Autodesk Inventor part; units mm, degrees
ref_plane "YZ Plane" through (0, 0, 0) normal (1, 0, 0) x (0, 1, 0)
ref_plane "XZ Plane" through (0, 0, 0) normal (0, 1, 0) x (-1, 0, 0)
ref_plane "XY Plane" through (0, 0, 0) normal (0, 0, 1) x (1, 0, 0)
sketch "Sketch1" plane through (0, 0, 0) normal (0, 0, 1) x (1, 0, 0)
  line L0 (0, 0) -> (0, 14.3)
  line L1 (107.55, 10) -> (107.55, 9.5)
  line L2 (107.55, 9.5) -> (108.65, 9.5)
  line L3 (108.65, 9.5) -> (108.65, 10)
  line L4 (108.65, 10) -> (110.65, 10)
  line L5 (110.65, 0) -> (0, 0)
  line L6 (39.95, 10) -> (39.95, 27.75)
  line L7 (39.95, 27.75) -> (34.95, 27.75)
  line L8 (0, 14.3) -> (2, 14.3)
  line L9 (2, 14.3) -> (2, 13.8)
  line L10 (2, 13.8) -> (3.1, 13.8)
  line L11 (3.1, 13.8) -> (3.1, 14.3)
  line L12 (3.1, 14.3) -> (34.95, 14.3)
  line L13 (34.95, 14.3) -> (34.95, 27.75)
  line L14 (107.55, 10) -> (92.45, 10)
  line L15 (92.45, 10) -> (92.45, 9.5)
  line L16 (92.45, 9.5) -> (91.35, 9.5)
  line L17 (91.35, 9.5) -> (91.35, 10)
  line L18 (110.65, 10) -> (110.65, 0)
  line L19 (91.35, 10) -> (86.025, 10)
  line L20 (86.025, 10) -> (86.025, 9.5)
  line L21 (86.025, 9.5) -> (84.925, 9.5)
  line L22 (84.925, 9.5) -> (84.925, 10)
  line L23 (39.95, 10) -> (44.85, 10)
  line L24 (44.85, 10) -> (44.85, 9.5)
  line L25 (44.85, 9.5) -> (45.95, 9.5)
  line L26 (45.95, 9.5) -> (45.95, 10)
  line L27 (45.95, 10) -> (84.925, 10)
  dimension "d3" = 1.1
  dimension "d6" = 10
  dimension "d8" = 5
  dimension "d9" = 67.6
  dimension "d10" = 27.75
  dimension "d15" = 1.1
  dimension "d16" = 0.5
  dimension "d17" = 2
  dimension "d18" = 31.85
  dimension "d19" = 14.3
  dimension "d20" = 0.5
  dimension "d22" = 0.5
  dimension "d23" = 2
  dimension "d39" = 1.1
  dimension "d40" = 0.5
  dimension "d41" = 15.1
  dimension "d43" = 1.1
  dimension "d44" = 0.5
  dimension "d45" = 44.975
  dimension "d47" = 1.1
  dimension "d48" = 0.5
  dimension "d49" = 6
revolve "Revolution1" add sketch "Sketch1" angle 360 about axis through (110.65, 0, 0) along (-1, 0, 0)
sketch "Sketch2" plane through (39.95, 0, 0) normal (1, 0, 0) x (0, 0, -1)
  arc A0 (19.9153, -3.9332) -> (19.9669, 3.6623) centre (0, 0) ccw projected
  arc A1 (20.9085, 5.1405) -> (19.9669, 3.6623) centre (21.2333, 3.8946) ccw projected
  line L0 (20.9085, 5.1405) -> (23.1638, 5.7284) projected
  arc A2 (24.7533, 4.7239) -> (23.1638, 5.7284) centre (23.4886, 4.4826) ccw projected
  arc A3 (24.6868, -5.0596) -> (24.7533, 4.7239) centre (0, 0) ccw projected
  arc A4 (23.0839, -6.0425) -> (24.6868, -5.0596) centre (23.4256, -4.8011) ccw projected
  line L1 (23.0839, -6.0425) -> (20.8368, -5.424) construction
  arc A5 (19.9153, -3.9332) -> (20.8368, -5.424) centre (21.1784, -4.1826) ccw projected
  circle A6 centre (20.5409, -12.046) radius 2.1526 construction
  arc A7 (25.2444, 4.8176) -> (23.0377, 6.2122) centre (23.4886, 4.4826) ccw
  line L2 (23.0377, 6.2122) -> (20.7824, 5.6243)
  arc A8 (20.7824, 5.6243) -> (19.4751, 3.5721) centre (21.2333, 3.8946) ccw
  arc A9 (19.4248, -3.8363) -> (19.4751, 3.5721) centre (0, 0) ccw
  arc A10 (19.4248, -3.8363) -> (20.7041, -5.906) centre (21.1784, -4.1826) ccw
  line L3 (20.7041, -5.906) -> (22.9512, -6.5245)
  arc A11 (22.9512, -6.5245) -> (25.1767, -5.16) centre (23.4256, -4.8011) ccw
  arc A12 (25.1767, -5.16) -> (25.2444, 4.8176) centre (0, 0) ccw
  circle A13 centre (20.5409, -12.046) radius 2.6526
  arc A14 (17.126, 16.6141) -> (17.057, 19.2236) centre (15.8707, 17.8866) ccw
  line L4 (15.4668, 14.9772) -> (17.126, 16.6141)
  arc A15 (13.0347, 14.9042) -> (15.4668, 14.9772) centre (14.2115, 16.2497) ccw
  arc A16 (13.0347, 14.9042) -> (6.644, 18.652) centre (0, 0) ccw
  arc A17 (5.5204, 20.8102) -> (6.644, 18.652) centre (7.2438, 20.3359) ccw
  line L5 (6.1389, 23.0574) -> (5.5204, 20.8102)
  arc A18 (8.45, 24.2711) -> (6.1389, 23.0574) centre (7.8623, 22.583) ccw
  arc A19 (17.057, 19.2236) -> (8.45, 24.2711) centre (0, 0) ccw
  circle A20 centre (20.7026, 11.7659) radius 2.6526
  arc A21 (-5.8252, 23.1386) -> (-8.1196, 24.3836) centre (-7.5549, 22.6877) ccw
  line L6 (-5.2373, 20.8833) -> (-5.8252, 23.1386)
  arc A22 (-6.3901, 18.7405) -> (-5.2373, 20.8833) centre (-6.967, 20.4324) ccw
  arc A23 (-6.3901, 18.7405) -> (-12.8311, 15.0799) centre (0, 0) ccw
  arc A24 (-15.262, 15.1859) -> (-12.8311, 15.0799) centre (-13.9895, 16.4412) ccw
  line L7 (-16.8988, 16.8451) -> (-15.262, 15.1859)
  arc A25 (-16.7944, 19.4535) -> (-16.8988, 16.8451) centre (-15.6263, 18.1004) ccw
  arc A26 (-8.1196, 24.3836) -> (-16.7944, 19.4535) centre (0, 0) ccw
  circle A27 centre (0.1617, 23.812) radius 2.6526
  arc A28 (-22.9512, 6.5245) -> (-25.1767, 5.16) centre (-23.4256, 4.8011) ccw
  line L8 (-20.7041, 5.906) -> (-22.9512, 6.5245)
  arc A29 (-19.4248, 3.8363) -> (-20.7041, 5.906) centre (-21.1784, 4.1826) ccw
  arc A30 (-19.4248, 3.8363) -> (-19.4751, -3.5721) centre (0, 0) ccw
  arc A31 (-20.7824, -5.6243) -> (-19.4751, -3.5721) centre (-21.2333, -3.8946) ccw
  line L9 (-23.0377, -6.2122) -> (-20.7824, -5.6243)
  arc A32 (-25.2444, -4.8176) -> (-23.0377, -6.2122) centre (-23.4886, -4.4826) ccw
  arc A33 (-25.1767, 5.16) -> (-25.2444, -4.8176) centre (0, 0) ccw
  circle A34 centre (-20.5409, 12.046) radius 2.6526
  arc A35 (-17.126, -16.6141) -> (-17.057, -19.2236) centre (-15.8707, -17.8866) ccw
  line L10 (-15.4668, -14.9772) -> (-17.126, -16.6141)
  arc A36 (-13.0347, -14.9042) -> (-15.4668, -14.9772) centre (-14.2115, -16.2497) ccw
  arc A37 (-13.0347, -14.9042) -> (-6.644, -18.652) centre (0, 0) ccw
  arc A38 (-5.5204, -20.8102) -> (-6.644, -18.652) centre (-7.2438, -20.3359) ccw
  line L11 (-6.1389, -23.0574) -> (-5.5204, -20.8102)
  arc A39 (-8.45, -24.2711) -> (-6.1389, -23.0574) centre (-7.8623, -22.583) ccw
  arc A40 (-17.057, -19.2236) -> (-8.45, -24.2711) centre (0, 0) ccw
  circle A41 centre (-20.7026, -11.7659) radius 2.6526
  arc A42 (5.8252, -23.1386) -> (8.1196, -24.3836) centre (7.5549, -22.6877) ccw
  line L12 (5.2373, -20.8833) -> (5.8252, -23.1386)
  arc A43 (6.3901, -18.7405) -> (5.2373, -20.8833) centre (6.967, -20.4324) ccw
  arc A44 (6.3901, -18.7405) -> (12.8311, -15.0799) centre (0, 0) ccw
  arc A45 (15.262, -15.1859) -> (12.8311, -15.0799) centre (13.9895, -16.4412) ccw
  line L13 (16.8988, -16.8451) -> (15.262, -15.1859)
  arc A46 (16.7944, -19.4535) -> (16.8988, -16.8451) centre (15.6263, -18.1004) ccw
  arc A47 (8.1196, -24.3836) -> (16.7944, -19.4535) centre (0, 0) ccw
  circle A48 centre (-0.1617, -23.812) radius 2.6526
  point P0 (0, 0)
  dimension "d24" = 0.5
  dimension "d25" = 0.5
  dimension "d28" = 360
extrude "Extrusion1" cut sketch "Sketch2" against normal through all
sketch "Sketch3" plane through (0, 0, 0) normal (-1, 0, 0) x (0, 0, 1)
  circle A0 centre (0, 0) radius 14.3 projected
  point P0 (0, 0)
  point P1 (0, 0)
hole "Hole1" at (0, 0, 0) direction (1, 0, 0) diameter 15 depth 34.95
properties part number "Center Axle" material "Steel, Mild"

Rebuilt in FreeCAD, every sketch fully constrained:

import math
import FreeCAD as App
import Part
import Sketcher
Q = App.Units.Quantity

doc = App.newDocument("Part")
body = doc.addObject("PartDesign::Body", "Body")

# Sketch on XY plane
sketch1 = body.newObject("Sketcher::SketchObject", "Sketch")
sketch1.AttachmentSupport = (doc.getObject("XY_Plane"), [""])
sketch1.MapMode = "FlatFace"
sketch1.addGeometry([
    Part.LineSegment(App.Vector(0, 14.3, 0), App.Vector(0, 0, 0)),  # 0
    Part.LineSegment(App.Vector(0, 0, 0), App.Vector(110.7, 0, 0)),  # 1
    Part.LineSegment(App.Vector(110.7, 0, 0), App.Vector(110.7, 10, 0)),  # 2
    Part.LineSegment(App.Vector(110.7, 10, 0), App.Vector(108.7, 10, 0)),  # 3
    Part.LineSegment(App.Vector(108.7, 10, 0), App.Vector(108.7, 9.5, 0)),  # 4
    Part.LineSegment(App.Vector(108.7, 9.5, 0), App.Vector(107.5, 9.5, 0)),  # 5
    Part.LineSegment(App.Vector(107.5, 9.5, 0), App.Vector(107.5, 10, 0)),  # 6
    Part.LineSegment(App.Vector(107.5, 10, 0), App.Vector(92.5, 10, 0)),  # 7
    Part.LineSegment(App.Vector(92.5, 10, 0), App.Vector(92.5, 9.5, 0)),  # 8
    Part.LineSegment(App.Vector(92.5, 9.5, 0), App.Vector(91.3, 9.5, 0)),  # 9
    Part.LineSegment(App.Vector(91.3, 9.5, 0), App.Vector(91.3, 10, 0)),  # 10
    Part.LineSegment(App.Vector(91.3, 10, 0), App.Vector(86, 10, 0)),  # 11
    Part.LineSegment(App.Vector(86, 10, 0), App.Vector(86, 9.5, 0)),  # 12
    Part.LineSegment(App.Vector(86, 9.5, 0), App.Vector(84.9, 9.5, 0)),  # 13
    Part.LineSegment(App.Vector(84.9, 9.5, 0), App.Vector(84.9, 10, 0)),  # 14
    Part.LineSegment(App.Vector(84.9, 10, 0), App.Vector(46, 10, 0)),  # 15
    Part.LineSegment(App.Vector(46, 10, 0), App.Vector(46, 9.5, 0)),  # 16
    Part.LineSegment(App.Vector(46, 9.5, 0), App.Vector(44.9, 9.5, 0)),  # 17
    Part.LineSegment(App.Vector(44.9, 9.5, 0), App.Vector(44.9, 10, 0)),  # 18
    Part.LineSegment(App.Vector(44.9, 10, 0), App.Vector(40, 10, 0)),  # 19
    Part.LineSegment(App.Vector(40, 10, 0), App.Vector(40, 27.8, 0)),  # 20
    Part.LineSegment(App.Vector(40, 27.8, 0), App.Vector(35, 27.8, 0)),  # 21
    Part.LineSegment(App.Vector(35, 27.8, 0), App.Vector(35, 14.3, 0)),  # 22
    Part.LineSegment(App.Vector(35, 14.3, 0), App.Vector(3.1, 14.3, 0)),  # 23
    Part.LineSegment(App.Vector(3.1, 14.3, 0), App.Vector(3.1, 13.8, 0)),  # 24
    Part.LineSegment(App.Vector(3.1, 13.8, 0), App.Vector(2, 13.8, 0)),  # 25
    Part.LineSegment(App.Vector(2, 13.8, 0), App.Vector(2, 14.3, 0)),  # 26
    Part.LineSegment(App.Vector(2, 14.3, 0), App.Vector(0, 14.3, 0)),  # 27
], False)
sketch1.addConstraint([
    Sketcher.Constraint("Coincident", 0, 2, 1, 1),
    Sketcher.Constraint("Coincident", 1, 2, 2, 1),
    Sketcher.Constraint("Coincident", 2, 2, 3, 1),
    Sketcher.Constraint("Coincident", 3, 2, 4, 1),
    Sketcher.Constraint("Coincident", 4, 2, 5, 1),
    Sketcher.Constraint("Coincident", 5, 2, 6, 1),
    Sketcher.Constraint("Coincident", 6, 2, 7, 1),
    Sketcher.Constraint("Coincident", 7, 2, 8, 1),
    Sketcher.Constraint("Coincident", 8, 2, 9, 1),
    Sketcher.Constraint("Coincident", 9, 2, 10, 1),
    Sketcher.Constraint("Coincident", 10, 2, 11, 1),
    Sketcher.Constraint("Coincident", 11, 2, 12, 1),
    Sketcher.Constraint("Coincident", 12, 2, 13, 1),
    Sketcher.Constraint("Coincident", 13, 2, 14, 1),
    Sketcher.Constraint("Coincident", 14, 2, 15, 1),
    Sketcher.Constraint("Coincident", 15, 2, 16, 1),
    Sketcher.Constraint("Coincident", 16, 2, 17, 1),
    Sketcher.Constraint("Coincident", 17, 2, 18, 1),
    Sketcher.Constraint("Coincident", 18, 2, 19, 1),
    Sketcher.Constraint("Coincident", 19, 2, 20, 1),
    Sketcher.Constraint("Coincident", 20, 2, 21, 1),
    Sketcher.Constraint("Coincident", 21, 2, 22, 1),
    Sketcher.Constraint("Coincident", 22, 2, 23, 1),
    Sketcher.Constraint("Coincident", 23, 2, 24, 1),
    Sketcher.Constraint("Coincident", 24, 2, 25, 1),
    Sketcher.Constraint("Coincident", 25, 2, 26, 1),
    Sketcher.Constraint("Coincident", 26, 2, 27, 1),
    Sketcher.Constraint("Coincident", 27, 2, 0, 1),
    Sketcher.Constraint("Vertical", 0),
    Sketcher.Constraint("Horizontal", 1),
    Sketcher.Constraint("Vertical", 2),
    Sketcher.Constraint("Horizontal", 3),
    Sketcher.Constraint("Vertical", 4),
    Sketcher.Constraint("Horizontal", 5),
    Sketcher.Constraint("Vertical", 6),
    Sketcher.Constraint("Horizontal", 7),
    Sketcher.Constraint("Vertical", 8),
    Sketcher.Constraint("Horizontal", 9),
    Sketcher.Constraint("Vertical", 10),
    Sketcher.Constraint("Horizontal", 11),
    Sketcher.Constraint("Vertical", 12),
    Sketcher.Constraint("Horizontal", 13),
    Sketcher.Constraint("Vertical", 14),
    Sketcher.Constraint("Horizontal", 15),
    Sketcher.Constraint("Vertical", 16),
    Sketcher.Constraint("Horizontal", 17),
    Sketcher.Constraint("Vertical", 18),
    Sketcher.Constraint("Horizontal", 19),
    Sketcher.Constraint("Vertical", 20),
    Sketcher.Constraint("Horizontal", 21),
    Sketcher.Constraint("Vertical", 22),
    Sketcher.Constraint("Horizontal", 23),
    Sketcher.Constraint("Vertical", 24),
    Sketcher.Constraint("Horizontal", 25),
    Sketcher.Constraint("Vertical", 26),
    Sketcher.Constraint("Horizontal", 27),
    Sketcher.Constraint("Coincident", 0, 2, -1, 1),
    Sketcher.Constraint("Horizontal", 3, 2, 6, 2),
    Sketcher.Constraint("Horizontal", 5, 2, 8, 2),
    Sketcher.Constraint("Horizontal", 7, 2, 10, 2),
    Sketcher.Constraint("Horizontal", 9, 2, 12, 2),
    Sketcher.Constraint("Horizontal", 11, 2, 14, 2),
    Sketcher.Constraint("Horizontal", 13, 2, 16, 2),
    Sketcher.Constraint("Horizontal", 15, 2, 18, 2),
    Sketcher.Constraint("Horizontal", 23, 2, 26, 2),
    Sketcher.Constraint("Equal", 5, 9),
    Sketcher.Constraint("Equal", 9, 13),
    Sketcher.Constraint("Equal", 13, 17),
    Sketcher.Constraint("Equal", 17, 25),
    Sketcher.Constraint("Equal", 3, 27),
    Sketcher.Constraint("Equal", 18, 24),
    Sketcher.Constraint("DistanceX", 3, 2, 3, 1, 2.0),
    Sketcher.Constraint("DistanceX", 21, 2, 21, 1, 5.0),
    Sketcher.Constraint("DistanceY", 2, 1, 2, 2, 10.0),
    Sketcher.Constraint("DistanceX", 5, 2, 5, 1, 1.1),
    Sketcher.Constraint("DistanceX", 7, 2, 7, 1, 15.1),
    Sketcher.Constraint("DistanceY", 0, 2, 0, 1, 14.3),
    Sketcher.Constraint("DistanceY", 4, 2, 4, 1, 0.5),
    Sketcher.Constraint("DistanceX", 19, 2, 15, 2, 6.0),
    Sketcher.Constraint("DistanceX", 23, 2, 23, 1, 31.85),
    Sketcher.Constraint("DistanceY", -1, 1, 20, 2, 27.75),
    Sketcher.Constraint("DistanceX", 1, 1, 1, 2, 110.65),
    Sketcher.Constraint("DistanceX", 11, 2, 11, 1, 5.325),
])
revolution = body.newObject("PartDesign::Revolution", "Revolution")
revolution.Profile = sketch1
revolution.ReferenceAxis = (sketch1, ["H_Axis"])
revolution.Angle = 360

# Sketch on YZ plane
sketch2 = body.newObject("Sketcher::SketchObject", "Sketch001")
sketch2.AttachmentSupport = (doc.getObject("YZ_Plane"), [""])
sketch2.MapMode = "FlatFace"
sketch2.AttachmentOffset = App.Placement(App.Vector(0, 0, 39.95), App.Rotation())
sketch2.addGeometry([
    Part.ArcOfCircle(Part.Circle(App.Vector(0, 0, 0), App.Vector(0, 0, 1), 25.7), math.radians(-102), math.radians(-79)),  # 0
    Part.ArcOfCircle(Part.Circle(App.Vector(4.5, -23.5, 0), App.Vector(0, 0, 1), 1.8), math.radians(-79), math.radians(15)),  # 1
    Part.LineSegment(App.Vector(6.2, -23, 0), App.Vector(5.6, -20.8, 0)),  # 2
    Part.ArcOfCircle(Part.Circle(App.Vector(3.9, -21.2, 0), App.Vector(0, 0, 1), 1.8), math.radians(15), math.radians(100)),  # 3
    Part.ArcOfCircle(Part.Circle(App.Vector(0, 0, 0), App.Vector(0, 0, 1), 19.8), math.radians(-101), math.radians(-80)),  # 4
    Part.ArcOfCircle(Part.Circle(App.Vector(-4.2, -21.2, 0), App.Vector(0, 0, 1), 1.8), math.radians(79), math.radians(165)),  # 5
    Part.LineSegment(App.Vector(-5.9, -20.7, 0), App.Vector(-6.5, -23, 0)),  # 6
    Part.ArcOfCircle(Part.Circle(App.Vector(-4.8, -23.4, 0), App.Vector(0, 0, 1), 1.8), math.radians(165), math.radians(258)),  # 7
    Part.Circle(App.Vector(-12, -20.5, 0), App.Vector(0, 0, 1), 2.7),  # 8
    Part.LineSegment(App.Vector(15, -15.5, 0), App.Vector(16.6, -17.1, 0)),  # 9
    Part.ArcOfCircle(Part.Circle(App.Vector(17.9, -15.9, 0), App.Vector(0, 0, 1), 1.8), math.radians(-135), math.radians(-42)),  # 10
    Part.ArcOfCircle(Part.Circle(App.Vector(0, 0, 0), App.Vector(0, 0, 1), 25.7), math.radians(-42), math.radians(-19)),  # 11
    Part.ArcOfCircle(Part.Circle(App.Vector(22.6, -7.9, 0), App.Vector(0, 0, 1), 1.8), math.radians(-19), math.radians(75)),  # 12
    Part.LineSegment(App.Vector(23.1, -6.1, 0), App.Vector(20.8, -5.5, 0)),  # 13
    Part.ArcOfCircle(Part.Circle(App.Vector(20.3, -7.2, 0), App.Vector(0, 0, 1), 1.8), math.radians(75), math.radians(160)),  # 14
    Part.ArcOfCircle(Part.Circle(App.Vector(0, 0, 0), App.Vector(0, 0, 1), 19.8), math.radians(-41), math.radians(-20)),  # 15
    Part.ArcOfCircle(Part.Circle(App.Vector(16.2, -14.2, 0), App.Vector(0, 0, 1), 1.8), math.radians(139), math.radians(225)),  # 16
    Part.Circle(App.Vector(11.8, -20.7, 0), App.Vector(0, 0, 1), 2.7),  # 17
    Part.LineSegment(App.Vector(20.9, 5.2, 0), App.Vector(23.1, 5.8, 0)),  # 18
    Part.ArcOfCircle(Part.Circle(App.Vector(22.7, 7.6, 0), App.Vector(0, 0, 1), 1.8), math.radians(-75), math.radians(18)),  # 19
    Part.ArcOfCircle(Part.Circle(App.Vector(0, 0, 0), App.Vector(0, 0, 1), 25.7), math.radians(18), math.radians(41)),  # 20
    Part.ArcOfCircle(Part.Circle(App.Vector(18.1, 15.6, 0), App.Vector(0, 0, 1), 1.8), math.radians(41), math.radians(135)),  # 21
    Part.LineSegment(App.Vector(16.8, 16.9, 0), App.Vector(15.2, 15.3, 0)),  # 22
    Part.ArcOfCircle(Part.Circle(App.Vector(16.4, 14, 0), App.Vector(0, 0, 1), 1.8), math.radians(135), math.radians(220)),  # 23
    Part.ArcOfCircle(Part.Circle(App.Vector(0, 0, 0), App.Vector(0, 0, 1), 19.8), math.radians(19), math.radians(40)),  # 24
    Part.ArcOfCircle(Part.Circle(App.Vector(20.4, 7, 0), App.Vector(0, 0, 1), 1.8), math.radians(-161), math.radians(-75)),  # 25
    Part.Circle(App.Vector(23.8, -0.2, 0), App.Vector(0, 0, 1), 2.7),  # 26
    Part.LineSegment(App.Vector(5.9, 20.7, 0), App.Vector(6.5, 23, 0)),  # 27
    Part.ArcOfCircle(Part.Circle(App.Vector(4.8, 23.4, 0), App.Vector(0, 0, 1), 1.8), math.radians(-15), math.radians(78)),  # 28
    Part.ArcOfCircle(Part.Circle(App.Vector(0, 0, 0), App.Vector(0, 0, 1), 25.7), math.radians(78), math.radians(101)),  # 29
    Part.ArcOfCircle(Part.Circle(App.Vector(-4.5, 23.5, 0), App.Vector(0, 0, 1), 1.8), math.radians(101), math.radians(195)),  # 30
    Part.LineSegment(App.Vector(-6.2, 23, 0), App.Vector(-5.6, 20.8, 0)),  # 31
    Part.ArcOfCircle(Part.Circle(App.Vector(-3.9, 21.2, 0), App.Vector(0, 0, 1), 1.8), math.radians(-165), math.radians(-80)),  # 32
    Part.ArcOfCircle(Part.Circle(App.Vector(0, 0, 0), App.Vector(0, 0, 1), 19.8), math.radians(79), math.radians(100)),  # 33
    Part.ArcOfCircle(Part.Circle(App.Vector(4.2, 21.2, 0), App.Vector(0, 0, 1), 1.8), math.radians(-101), math.radians(-15)),  # 34
    Part.Circle(App.Vector(12, 20.5, 0), App.Vector(0, 0, 1), 2.7),  # 35
    Part.LineSegment(App.Vector(-15, 15.5, 0), App.Vector(-16.6, 17.1, 0)),  # 36
    Part.ArcOfCircle(Part.Circle(App.Vector(-17.9, 15.9, 0), App.Vector(0, 0, 1), 1.8), math.radians(45), math.radians(138)),  # 37
    Part.ArcOfCircle(Part.Circle(App.Vector(0, 0, 0), App.Vector(0, 0, 1), 25.7), math.radians(138), math.radians(161)),  # 38
    Part.ArcOfCircle(Part.Circle(App.Vector(-22.6, 7.9, 0), App.Vector(0, 0, 1), 1.8), math.radians(161), math.radians(255)),  # 39
    Part.LineSegment(App.Vector(-23.1, 6.1, 0), App.Vector(-20.8, 5.5, 0)),  # 40
    Part.ArcOfCircle(Part.Circle(App.Vector(-20.3, 7.2, 0), App.Vector(0, 0, 1), 1.8), math.radians(-105), math.radians(-20)),  # 41
    Part.ArcOfCircle(Part.Circle(App.Vector(0, 0, 0), App.Vector(0, 0, 1), 19.8), math.radians(139), math.radians(160)),  # 42
    Part.ArcOfCircle(Part.Circle(App.Vector(-16.2, 14.2, 0), App.Vector(0, 0, 1), 1.8), math.radians(-41), math.radians(45)),  # 43
    Part.Circle(App.Vector(-11.8, 20.7, 0), App.Vector(0, 0, 1), 2.7),  # 44
    Part.LineSegment(App.Vector(-20.9, -5.2, 0), App.Vector(-23.1, -5.8, 0)),  # 45
    Part.ArcOfCircle(Part.Circle(App.Vector(-22.7, -7.6, 0), App.Vector(0, 0, 1), 1.8), math.radians(105), math.radians(198)),  # 46
    Part.ArcOfCircle(Part.Circle(App.Vector(0, 0, 0), App.Vector(0, 0, 1), 25.7), math.radians(-162), math.radians(-139)),  # 47
    Part.ArcOfCircle(Part.Circle(App.Vector(-18.1, -15.6, 0), App.Vector(0, 0, 1), 1.8), math.radians(-139), math.radians(-45)),  # 48
    Part.LineSegment(App.Vector(-16.8, -16.9, 0), App.Vector(-15.2, -15.3, 0)),  # 49
    Part.ArcOfCircle(Part.Circle(App.Vector(-16.4, -14, 0), App.Vector(0, 0, 1), 1.8), math.radians(-45), math.radians(40)),  # 50
    Part.ArcOfCircle(Part.Circle(App.Vector(0, 0, 0), App.Vector(0, 0, 1), 19.8), math.radians(-161), math.radians(-140)),  # 51
    Part.ArcOfCircle(Part.Circle(App.Vector(-20.4, -7, 0), App.Vector(0, 0, 1), 1.8), math.radians(19), math.radians(105)),  # 52
    Part.Circle(App.Vector(-23.8, 0.2, 0), App.Vector(0, 0, 1), 2.7),  # 53
], False)
sketch2.addConstraint([
    Sketcher.Constraint("Tangent", 0, 2, 1, 1),
    Sketcher.Constraint("Tangent", 1, 2, 2, 1),
    Sketcher.Constraint("Tangent", 2, 2, 3, 1),
    Sketcher.Constraint("Tangent", 3, 2, 4, 2),
    Sketcher.Constraint("Tangent", 4, 1, 5, 1),
    Sketcher.Constraint("Tangent", 5, 2, 6, 1),
    Sketcher.Constraint("Tangent", 6, 2, 7, 1),
    Sketcher.Constraint("Tangent", 7, 2, 0, 1),
    Sketcher.Constraint("Tangent", 9, 2, 10, 1),
    Sketcher.Constraint("Tangent", 10, 2, 11, 1),
    Sketcher.Constraint("Tangent", 11, 2, 12, 1),
    Sketcher.Constraint("Tangent", 12, 2, 13, 1),
    Sketcher.Constraint("Tangent", 13, 2, 14, 1),
    Sketcher.Constraint("Tangent", 14, 2, 15, 2),
    Sketcher.Constraint("Tangent", 15, 1, 16, 1),
    Sketcher.Constraint("Tangent", 16, 2, 9, 1),
    Sketcher.Constraint("Tangent", 18, 2, 19, 1),
    Sketcher.Constraint("Tangent", 19, 2, 20, 1),
    Sketcher.Constraint("Tangent", 20, 2, 21, 1),
    Sketcher.Constraint("Tangent", 21, 2, 22, 1),
    Sketcher.Constraint("Tangent", 22, 2, 23, 1),
    Sketcher.Constraint("Tangent", 23, 2, 24, 2),
    Sketcher.Constraint("Tangent", 24, 1, 25, 1),
    Sketcher.Constraint("Tangent", 25, 2, 18, 1),
    Sketcher.Constraint("Tangent", 27, 2, 28, 1),
    Sketcher.Constraint("Tangent", 28, 2, 29, 1),
    Sketcher.Constraint("Tangent", 29, 2, 30, 1),
    Sketcher.Constraint("Tangent", 30, 2, 31, 1),
    Sketcher.Constraint("Tangent", 31, 2, 32, 1),
    Sketcher.Constraint("Tangent", 32, 2, 33, 2),
    Sketcher.Constraint("Tangent", 33, 1, 34, 1),
    Sketcher.Constraint("Tangent", 34, 2, 27, 1),
    Sketcher.Constraint("Tangent", 36, 2, 37, 1),
    Sketcher.Constraint("Tangent", 37, 2, 38, 1),
    Sketcher.Constraint("Tangent", 38, 2, 39, 1),
    Sketcher.Constraint("Tangent", 39, 2, 40, 1),
    Sketcher.Constraint("Tangent", 40, 2, 41, 1),
    Sketcher.Constraint("Tangent", 41, 2, 42, 2),
    Sketcher.Constraint("Tangent", 42, 1, 43, 1),
    Sketcher.Constraint("Tangent", 43, 2, 36, 1),
    Sketcher.Constraint("Tangent", 45, 2, 46, 1),
    Sketcher.Constraint("Tangent", 46, 2, 47, 1),
    Sketcher.Constraint("Tangent", 47, 2, 48, 1),
    Sketcher.Constraint("Tangent", 48, 2, 49, 1),
    Sketcher.Constraint("Tangent", 49, 2, 50, 1),
    Sketcher.Constraint("Tangent", 50, 2, 51, 2),
    Sketcher.Constraint("Tangent", 51, 1, 52, 1),
    Sketcher.Constraint("Tangent", 52, 2, 45, 1),
    Sketcher.Constraint("Coincident", 4, 3, -1, 1),
    Sketcher.Constraint("Coincident", 11, 3, -1, 1),
    Sketcher.Constraint("Coincident", 15, 3, -1, 1),
    Sketcher.Constraint("Coincident", 24, 3, -1, 1),
    Sketcher.Constraint("Coincident", 33, 3, -1, 1),
    Sketcher.Constraint("Coincident", 38, 3, -1, 1),
    Sketcher.Constraint("Coincident", 42, 3, -1, 1),
    Sketcher.Constraint("Coincident", 51, 3, -1, 1),
    Sketcher.Constraint("Equal", 1, 3),
    Sketcher.Constraint("Equal", 3, 5),
    Sketcher.Constraint("Equal", 5, 7),
    Sketcher.Constraint("Equal", 7, 10),
    Sketcher.Constraint("Equal", 10, 12),
    Sketcher.Constraint("Equal", 12, 14),
    Sketcher.Constraint("Equal", 4, 15),
    Sketcher.Constraint("Equal", 14, 16),
    Sketcher.Constraint("Equal", 8, 17),
    Sketcher.Constraint("Equal", 16, 19),
    Sketcher.Constraint("Equal", 19, 21),
    Sketcher.Constraint("Equal", 21, 23),
    Sketcher.Constraint("Equal", 15, 24),
    Sketcher.Constraint("Equal", 23, 25),
    Sketcher.Constraint("Equal", 17, 26),
    Sketcher.Constraint("Equal", 25, 28),
    Sketcher.Constraint("Equal", 0, 29),
    Sketcher.Constraint("Equal", 28, 30),
    Sketcher.Constraint("Equal", 30, 32),
    Sketcher.Constraint("Equal", 24, 33),
    Sketcher.Constraint("Equal", 32, 34),
    Sketcher.Constraint("Equal", 26, 35),
    Sketcher.Constraint("Equal", 34, 37),
    Sketcher.Constraint("Equal", 11, 38),
    Sketcher.Constraint("Equal", 37, 39),
    Sketcher.Constraint("Equal", 39, 41),
    Sketcher.Constraint("Equal", 33, 42),
    Sketcher.Constraint("Equal", 41, 43),
    Sketcher.Constraint("Equal", 35, 44),
    Sketcher.Constraint("Equal", 43, 46),
    Sketcher.Constraint("Equal", 20, 47),
    Sketcher.Constraint("Equal", 46, 48),
    Sketcher.Constraint("Equal", 48, 50),
    Sketcher.Constraint("Equal", 42, 51),
    Sketcher.Constraint("Equal", 50, 52),
    Sketcher.Constraint("Equal", 44, 53),
    Sketcher.Constraint("Symmetric", 7, 3, 28, 3, -1, 1),
    Sketcher.Constraint("Symmetric", 1, 3, 30, 3, -1, 1),
    Sketcher.Constraint("Symmetric", 8, 3, 35, 3, -1, 1),
    Sketcher.Constraint("Symmetric", 17, 3, 44, 3, -1, 1),
    Sketcher.Constraint("Symmetric", 19, 3, 46, 3, -1, 1),
    Sketcher.Constraint("Symmetric", 21, 3, 48, 3, -1, 1),
    Sketcher.Constraint("Symmetric", 26, 3, 53, 3, -1, 1),
    Sketcher.Constraint("Symmetric", 9, 2, 36, 2, -1, 1),
    Sketcher.Constraint("Symmetric", 12, 2, 39, 2, -1, 1),
    Sketcher.Constraint("PointOnObject", 0, 3, -2),
    Sketcher.Constraint("Perpendicular", 6, 13),
    Sketcher.Constraint("Perpendicular", 2, 18),
    Sketcher.Constraint("Perpendicular", 9, 22),
    Sketcher.Constraint("Perpendicular", 13, 27),
    Sketcher.Constraint("Perpendicular", 18, 31),
    Sketcher.Constraint("Perpendicular", 31, 45),
    Sketcher.Constraint("Perpendicular", 36, 49),
    Sketcher.Constraint("Equal", 2, 6),
    Sketcher.Constraint("Equal", 6, 9),
    Sketcher.Constraint("Equal", 9, 13),
    Sketcher.Constraint("Equal", 13, 18),
    Sketcher.Constraint("Equal", 18, 22),
    Sketcher.Constraint("Radius", 4, 19.8),
    Sketcher.Constraint("Radius", 11, 25.7),
    Sketcher.Constraint("Diameter", 8, 5.3052),
    Sketcher.Constraint("Angle", 2, Q("104.6104 deg")),
    Sketcher.Constraint("Angle", 6, Q("-105.3892 deg")),
    Sketcher.Constraint("Angle", 22, Q("-135.3894 deg")),
    Sketcher.Constraint("Radius", 0, 25.6986),
    Sketcher.Constraint("Radius", 1, 1.7875),
    Sketcher.Constraint("Radius", 20, 25.7013),
    Sketcher.Constraint("DistanceX", 7, 2, -1, 1, 5.16),
    Sketcher.Constraint("DistanceY", 11, 2, -1, 1, 8.45),
    Sketcher.Constraint("DistanceX", -1, 1, 23, 2, 15.08),
    Sketcher.Constraint("DistanceY", -1, 1, 24, 1, 6.39),
    Sketcher.Constraint("DistanceX", 8, 3, -1, 1, 12.046),
    Sketcher.Constraint("DistanceY", 8, 3, -1, 1, 20.541),
    Sketcher.Constraint("DistanceX", -1, 1, 17, 3, 11.766),
    Sketcher.Constraint("DistanceX", -1, 1, 26, 3, 23.812),
    Sketcher.Constraint("DistanceY", 17, 3, -1, 1, 20.7026),
    Sketcher.Constraint("DistanceY", 26, 3, -1, 1, 0.1617),
])
pocket1 = body.newObject("PartDesign::Pocket", "Pocket")
pocket1.Profile = sketch2
pocket1.Type = "ThroughAll"

# Sketch on YZ plane
sketch3 = body.newObject("Sketcher::SketchObject", "Sketch002")
sketch3.AttachmentSupport = (doc.getObject("YZ_Plane"), [""])
sketch3.MapMode = "FlatFace"
sketch3.addGeometry(Part.Circle(App.Vector(0, 0, 0), App.Vector(0, 0, 1), 8), False)
sketch3.addConstraint([
    Sketcher.Constraint("Coincident", 0, 3, -1, 1),
    Sketcher.Constraint("Diameter", 0, 15.0),
])
doc.recompute()
hole = body.newObject("PartDesign::Hole", "Hole")
hole.Profile = sketch3
hole.ThreadType = "None"
hole.Diameter = 15
hole.DepthType = "Dimension"
hole.Depth = 34.95
hole.DrillPoint = "Flat"
hole.Reversed = True

doc.recompute()
